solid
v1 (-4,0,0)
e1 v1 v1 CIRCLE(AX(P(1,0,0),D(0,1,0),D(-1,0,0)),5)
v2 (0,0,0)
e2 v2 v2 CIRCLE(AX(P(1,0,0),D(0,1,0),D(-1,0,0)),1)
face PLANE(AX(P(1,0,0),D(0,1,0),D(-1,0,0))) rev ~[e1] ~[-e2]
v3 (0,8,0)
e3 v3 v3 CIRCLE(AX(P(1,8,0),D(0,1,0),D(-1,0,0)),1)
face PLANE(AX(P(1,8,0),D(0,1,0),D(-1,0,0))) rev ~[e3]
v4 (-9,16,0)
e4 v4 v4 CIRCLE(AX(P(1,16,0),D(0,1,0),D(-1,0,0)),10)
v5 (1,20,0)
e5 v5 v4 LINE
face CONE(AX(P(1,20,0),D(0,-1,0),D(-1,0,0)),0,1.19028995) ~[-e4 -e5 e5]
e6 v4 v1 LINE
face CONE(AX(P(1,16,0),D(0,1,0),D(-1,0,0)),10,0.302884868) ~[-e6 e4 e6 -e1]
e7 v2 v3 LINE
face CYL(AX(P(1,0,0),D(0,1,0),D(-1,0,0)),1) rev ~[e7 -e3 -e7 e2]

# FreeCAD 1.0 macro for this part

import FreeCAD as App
import Part
import Sketcher
Q = App.Units.Quantity


def add_polygon(sketch, points):
    """Adds a closed chain of lines whose ends are joined by coincident constraints."""
    first, n = sketch.GeometryCount, len(points)
    for a, b in zip(points, points[1:] + points[:1]):
        sketch.addGeometry(Part.LineSegment(App.Vector(*a, 0), App.Vector(*b, 0)), False)
    for i in range(n):
        sketch.addConstraint(Sketcher.Constraint("Coincident", first + i, 2, first + (i + 1) % n, 1))

doc = App.newDocument("Part")
body = doc.addObject("PartDesign::Body", "Body")

sketch1 = doc.addObject("Sketcher::SketchObject", "Sketch")
body.addObject(sketch1)
sketch1.AttachmentSupport = (doc.XY_Plane, [""])
sketch1.MapMode = "FlatFace"
add_polygon(sketch1, [(-4, 0), (0, 0), (0, 8), (1, 8), (1, 20), (-9, 16)])
sketch1.addGeometry(Part.LineSegment(App.Vector(1, 0, 0), App.Vector(1, 20, 0)), True)
sketch1.addConstraint([
    Sketcher.Constraint("Horizontal", 0),
    Sketcher.Constraint("Vertical", 1),
    Sketcher.Constraint("Horizontal", 2),
    Sketcher.Constraint("Vertical", 3),
    Sketcher.Constraint("Vertical", 6),
    Sketcher.Constraint("Coincident", 0, 2, -1, 1),
    Sketcher.Constraint("Coincident", 6, 2, 3, 2),
    Sketcher.Constraint("PointOnObject", 6, 1, -1),
    Sketcher.Constraint("DistanceX", 0, 1, 0, 2, Q("4 mm")),
    Sketcher.Constraint("DistanceX", 2, 1, 2, 2, Q("1 mm")),
    Sketcher.Constraint("DistanceY", 1, 1, 1, 2, Q("8 mm")),
    Sketcher.Constraint("DistanceY", 6, 1, 6, 2, Q("20 mm")),
    Sketcher.Constraint("DistanceX", 4, 2, 3, 2, Q("10 mm")),
    Sketcher.Constraint("DistanceY", 4, 2, 3, 2, Q("4 mm")),
])
revolution = doc.addObject("PartDesign::Revolution", "Revolution")
body.addObject(revolution)
revolution.Profile = sketch1
revolution.ReferenceAxis = (sketch1, ["Axis0"])
revolution.Angle = 360

doc.recompute()
